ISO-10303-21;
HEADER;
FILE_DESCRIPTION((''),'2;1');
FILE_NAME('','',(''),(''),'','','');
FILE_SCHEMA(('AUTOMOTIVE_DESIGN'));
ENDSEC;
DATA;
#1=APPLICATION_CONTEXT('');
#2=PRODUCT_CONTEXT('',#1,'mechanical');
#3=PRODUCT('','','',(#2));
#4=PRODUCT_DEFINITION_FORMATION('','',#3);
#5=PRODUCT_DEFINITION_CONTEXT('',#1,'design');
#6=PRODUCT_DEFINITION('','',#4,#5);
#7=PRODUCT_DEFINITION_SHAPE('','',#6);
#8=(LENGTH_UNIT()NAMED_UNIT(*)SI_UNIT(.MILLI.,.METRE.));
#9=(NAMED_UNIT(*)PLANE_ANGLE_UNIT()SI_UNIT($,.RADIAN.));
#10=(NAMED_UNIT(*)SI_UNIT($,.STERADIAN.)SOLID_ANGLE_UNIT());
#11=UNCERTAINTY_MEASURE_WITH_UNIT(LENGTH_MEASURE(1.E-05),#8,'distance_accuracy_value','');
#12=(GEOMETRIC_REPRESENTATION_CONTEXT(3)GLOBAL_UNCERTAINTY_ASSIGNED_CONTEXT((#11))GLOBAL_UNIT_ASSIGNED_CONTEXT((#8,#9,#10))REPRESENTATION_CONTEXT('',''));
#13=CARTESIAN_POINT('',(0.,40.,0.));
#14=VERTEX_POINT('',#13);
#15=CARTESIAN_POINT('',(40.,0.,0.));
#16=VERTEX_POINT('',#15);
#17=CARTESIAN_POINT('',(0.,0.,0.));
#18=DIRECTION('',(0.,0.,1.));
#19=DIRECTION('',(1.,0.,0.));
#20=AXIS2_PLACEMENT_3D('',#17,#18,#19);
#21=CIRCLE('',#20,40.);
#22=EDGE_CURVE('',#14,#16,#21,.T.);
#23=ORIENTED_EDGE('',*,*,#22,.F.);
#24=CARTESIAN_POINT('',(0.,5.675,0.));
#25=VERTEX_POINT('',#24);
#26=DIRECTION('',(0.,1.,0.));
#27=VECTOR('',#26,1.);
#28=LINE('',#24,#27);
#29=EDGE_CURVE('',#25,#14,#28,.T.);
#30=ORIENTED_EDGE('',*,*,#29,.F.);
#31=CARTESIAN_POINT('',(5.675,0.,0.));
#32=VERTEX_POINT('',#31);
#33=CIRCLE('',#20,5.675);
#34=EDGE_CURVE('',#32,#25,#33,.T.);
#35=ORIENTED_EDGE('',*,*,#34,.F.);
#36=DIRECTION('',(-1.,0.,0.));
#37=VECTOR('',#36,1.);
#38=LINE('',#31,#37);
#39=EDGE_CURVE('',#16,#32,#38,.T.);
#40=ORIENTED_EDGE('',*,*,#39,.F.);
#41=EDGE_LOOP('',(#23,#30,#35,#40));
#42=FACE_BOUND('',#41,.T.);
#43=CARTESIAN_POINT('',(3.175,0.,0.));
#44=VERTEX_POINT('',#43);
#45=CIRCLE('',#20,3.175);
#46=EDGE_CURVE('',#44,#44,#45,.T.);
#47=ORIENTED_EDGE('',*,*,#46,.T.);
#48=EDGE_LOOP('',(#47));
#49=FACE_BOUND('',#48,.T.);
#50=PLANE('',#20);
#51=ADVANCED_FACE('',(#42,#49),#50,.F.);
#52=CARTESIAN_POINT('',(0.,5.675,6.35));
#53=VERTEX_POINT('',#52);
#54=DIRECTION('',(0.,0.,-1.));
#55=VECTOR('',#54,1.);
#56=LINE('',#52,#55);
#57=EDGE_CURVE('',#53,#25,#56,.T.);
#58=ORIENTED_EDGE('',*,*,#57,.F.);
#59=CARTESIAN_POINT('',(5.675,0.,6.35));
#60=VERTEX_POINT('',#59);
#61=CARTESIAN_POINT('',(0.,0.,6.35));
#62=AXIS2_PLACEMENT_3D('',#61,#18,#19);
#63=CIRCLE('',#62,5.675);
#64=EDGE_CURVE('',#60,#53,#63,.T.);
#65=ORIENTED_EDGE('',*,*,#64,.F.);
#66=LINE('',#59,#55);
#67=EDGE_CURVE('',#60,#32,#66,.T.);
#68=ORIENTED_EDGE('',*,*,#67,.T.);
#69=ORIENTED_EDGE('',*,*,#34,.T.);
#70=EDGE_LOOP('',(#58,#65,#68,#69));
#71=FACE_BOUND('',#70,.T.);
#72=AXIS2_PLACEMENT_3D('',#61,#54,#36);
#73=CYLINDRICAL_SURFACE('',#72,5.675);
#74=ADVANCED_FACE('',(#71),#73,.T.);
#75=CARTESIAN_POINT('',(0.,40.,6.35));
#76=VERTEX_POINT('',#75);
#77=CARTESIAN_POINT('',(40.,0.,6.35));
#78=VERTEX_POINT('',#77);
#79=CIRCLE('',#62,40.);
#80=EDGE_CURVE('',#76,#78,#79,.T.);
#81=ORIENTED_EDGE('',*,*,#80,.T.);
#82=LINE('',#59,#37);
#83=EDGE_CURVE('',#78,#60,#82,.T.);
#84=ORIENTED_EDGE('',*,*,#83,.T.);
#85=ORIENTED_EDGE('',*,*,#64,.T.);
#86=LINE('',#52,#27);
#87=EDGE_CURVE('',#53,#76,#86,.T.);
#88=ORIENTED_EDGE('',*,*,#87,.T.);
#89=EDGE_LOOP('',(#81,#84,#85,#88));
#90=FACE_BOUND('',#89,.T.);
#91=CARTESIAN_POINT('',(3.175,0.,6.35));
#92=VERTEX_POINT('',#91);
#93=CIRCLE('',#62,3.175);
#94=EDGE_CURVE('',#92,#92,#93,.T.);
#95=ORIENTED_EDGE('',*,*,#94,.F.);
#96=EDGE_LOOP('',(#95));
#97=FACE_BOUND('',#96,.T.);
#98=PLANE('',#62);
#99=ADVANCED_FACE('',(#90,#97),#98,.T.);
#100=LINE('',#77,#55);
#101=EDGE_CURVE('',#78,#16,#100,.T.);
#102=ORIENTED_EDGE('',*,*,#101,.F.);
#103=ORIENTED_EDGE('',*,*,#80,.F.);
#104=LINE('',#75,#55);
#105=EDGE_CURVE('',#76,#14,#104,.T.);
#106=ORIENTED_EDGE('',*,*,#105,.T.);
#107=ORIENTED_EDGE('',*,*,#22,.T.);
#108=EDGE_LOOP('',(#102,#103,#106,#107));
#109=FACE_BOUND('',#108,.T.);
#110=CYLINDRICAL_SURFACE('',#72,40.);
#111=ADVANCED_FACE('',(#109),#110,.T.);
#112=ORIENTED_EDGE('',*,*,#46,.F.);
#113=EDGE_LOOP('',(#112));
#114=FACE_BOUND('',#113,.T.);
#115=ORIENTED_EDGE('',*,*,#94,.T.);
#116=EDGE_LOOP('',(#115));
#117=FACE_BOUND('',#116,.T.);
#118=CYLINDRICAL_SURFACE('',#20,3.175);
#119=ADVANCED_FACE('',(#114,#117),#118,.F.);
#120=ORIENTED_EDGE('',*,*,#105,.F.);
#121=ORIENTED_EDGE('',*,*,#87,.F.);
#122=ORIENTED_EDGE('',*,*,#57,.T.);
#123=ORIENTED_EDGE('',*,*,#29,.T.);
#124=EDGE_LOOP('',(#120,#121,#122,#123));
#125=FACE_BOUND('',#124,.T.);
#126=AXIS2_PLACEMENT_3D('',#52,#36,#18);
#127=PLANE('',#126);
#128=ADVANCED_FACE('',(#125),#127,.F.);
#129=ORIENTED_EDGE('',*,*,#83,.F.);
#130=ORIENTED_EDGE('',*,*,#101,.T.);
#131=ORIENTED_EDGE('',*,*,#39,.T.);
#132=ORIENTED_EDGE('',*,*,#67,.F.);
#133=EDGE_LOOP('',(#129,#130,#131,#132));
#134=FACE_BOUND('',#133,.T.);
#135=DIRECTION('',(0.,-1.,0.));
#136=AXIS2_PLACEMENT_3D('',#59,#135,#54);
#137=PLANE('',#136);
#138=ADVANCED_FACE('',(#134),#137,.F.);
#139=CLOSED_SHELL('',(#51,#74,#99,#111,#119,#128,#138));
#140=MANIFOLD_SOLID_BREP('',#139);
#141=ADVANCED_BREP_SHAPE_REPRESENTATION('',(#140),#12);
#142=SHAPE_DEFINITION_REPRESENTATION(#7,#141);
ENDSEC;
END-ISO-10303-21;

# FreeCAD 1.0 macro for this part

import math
import FreeCAD as App
import Part
import Sketcher
from FreeCAD import Vector

doc = App.newDocument("Part")
body = doc.addObject("PartDesign::Body", "Body")

sketch1 = body.newObject("Sketcher::SketchObject", "Sketch")
sketch1.AttachmentSupport = (doc.getObject("XY_Plane"), [""])
sketch1.MapMode = "FlatFace"
sketch1.addGeometry([
    Part.LineSegment(Vector(40, 0, 0), Vector(5.675, 0, 0)),
    Part.ArcOfCircle(Part.Circle(Vector(0, 0, 0), Vector(0, 0, 1), 5.675), math.radians(0), math.radians(90)),
    Part.LineSegment(Vector(0, 5.675, 0), Vector(0, 40, 0)),
    Part.ArcOfCircle(Part.Circle(Vector(0, 0, 0), Vector(0, 0, 1), 40), math.radians(90), math.radians(360)),
], False)
sketch1.addConstraint([
    Sketcher.Constraint("Coincident", 0, 2, 1, 1),
    Sketcher.Constraint("Coincident", 1, 2, 2, 1),
    Sketcher.Constraint("Coincident", 2, 2, 3, 1),
    Sketcher.Constraint("Coincident", 3, 2, 0, 1),
    Sketcher.Constraint("Horizontal", 0),
    Sketcher.Constraint("Vertical", 2),
    Sketcher.Constraint("Coincident", 1, 3, -1, 1),
    Sketcher.Constraint("Coincident", 3, 3, -1, 1),
    Sketcher.Constraint("PointOnObject", 0, 2, -1),
    Sketcher.Constraint("PointOnObject", 1, 2, -2),
    Sketcher.Constraint("Radius", 3, 40.0),
    Sketcher.Constraint("Radius", 1, 5.675),
])
pad1 = body.newObject("PartDesign::Pad", "Pad")
pad1.Profile = sketch1
pad1.Length = 6.35

sketch2 = body.newObject("Sketcher::SketchObject", "Sketch001")
sketch2.AttachmentSupport = (doc.getObject("XY_Plane"), [""])
sketch2.MapMode = "FlatFace"
sketch2.AttachmentOffset = App.Placement(Vector(0, 0, 6.35), App.Rotation())
sketch2.addGeometry(Part.Circle(Vector(0, 0, 0), Vector(0, 0, 1), 3.175), False)
sketch2.addConstraint([
    Sketcher.Constraint("Coincident", 0, 3, -1, 1),
    Sketcher.Constraint("Diameter", 0, 6.35),
])
pocket1 = body.newObject("PartDesign::Pocket", "Pocket")
pocket1.Profile = sketch2
pocket1.Type = "ThroughAll"
pocket1.Midplane = True

doc.recompute()
